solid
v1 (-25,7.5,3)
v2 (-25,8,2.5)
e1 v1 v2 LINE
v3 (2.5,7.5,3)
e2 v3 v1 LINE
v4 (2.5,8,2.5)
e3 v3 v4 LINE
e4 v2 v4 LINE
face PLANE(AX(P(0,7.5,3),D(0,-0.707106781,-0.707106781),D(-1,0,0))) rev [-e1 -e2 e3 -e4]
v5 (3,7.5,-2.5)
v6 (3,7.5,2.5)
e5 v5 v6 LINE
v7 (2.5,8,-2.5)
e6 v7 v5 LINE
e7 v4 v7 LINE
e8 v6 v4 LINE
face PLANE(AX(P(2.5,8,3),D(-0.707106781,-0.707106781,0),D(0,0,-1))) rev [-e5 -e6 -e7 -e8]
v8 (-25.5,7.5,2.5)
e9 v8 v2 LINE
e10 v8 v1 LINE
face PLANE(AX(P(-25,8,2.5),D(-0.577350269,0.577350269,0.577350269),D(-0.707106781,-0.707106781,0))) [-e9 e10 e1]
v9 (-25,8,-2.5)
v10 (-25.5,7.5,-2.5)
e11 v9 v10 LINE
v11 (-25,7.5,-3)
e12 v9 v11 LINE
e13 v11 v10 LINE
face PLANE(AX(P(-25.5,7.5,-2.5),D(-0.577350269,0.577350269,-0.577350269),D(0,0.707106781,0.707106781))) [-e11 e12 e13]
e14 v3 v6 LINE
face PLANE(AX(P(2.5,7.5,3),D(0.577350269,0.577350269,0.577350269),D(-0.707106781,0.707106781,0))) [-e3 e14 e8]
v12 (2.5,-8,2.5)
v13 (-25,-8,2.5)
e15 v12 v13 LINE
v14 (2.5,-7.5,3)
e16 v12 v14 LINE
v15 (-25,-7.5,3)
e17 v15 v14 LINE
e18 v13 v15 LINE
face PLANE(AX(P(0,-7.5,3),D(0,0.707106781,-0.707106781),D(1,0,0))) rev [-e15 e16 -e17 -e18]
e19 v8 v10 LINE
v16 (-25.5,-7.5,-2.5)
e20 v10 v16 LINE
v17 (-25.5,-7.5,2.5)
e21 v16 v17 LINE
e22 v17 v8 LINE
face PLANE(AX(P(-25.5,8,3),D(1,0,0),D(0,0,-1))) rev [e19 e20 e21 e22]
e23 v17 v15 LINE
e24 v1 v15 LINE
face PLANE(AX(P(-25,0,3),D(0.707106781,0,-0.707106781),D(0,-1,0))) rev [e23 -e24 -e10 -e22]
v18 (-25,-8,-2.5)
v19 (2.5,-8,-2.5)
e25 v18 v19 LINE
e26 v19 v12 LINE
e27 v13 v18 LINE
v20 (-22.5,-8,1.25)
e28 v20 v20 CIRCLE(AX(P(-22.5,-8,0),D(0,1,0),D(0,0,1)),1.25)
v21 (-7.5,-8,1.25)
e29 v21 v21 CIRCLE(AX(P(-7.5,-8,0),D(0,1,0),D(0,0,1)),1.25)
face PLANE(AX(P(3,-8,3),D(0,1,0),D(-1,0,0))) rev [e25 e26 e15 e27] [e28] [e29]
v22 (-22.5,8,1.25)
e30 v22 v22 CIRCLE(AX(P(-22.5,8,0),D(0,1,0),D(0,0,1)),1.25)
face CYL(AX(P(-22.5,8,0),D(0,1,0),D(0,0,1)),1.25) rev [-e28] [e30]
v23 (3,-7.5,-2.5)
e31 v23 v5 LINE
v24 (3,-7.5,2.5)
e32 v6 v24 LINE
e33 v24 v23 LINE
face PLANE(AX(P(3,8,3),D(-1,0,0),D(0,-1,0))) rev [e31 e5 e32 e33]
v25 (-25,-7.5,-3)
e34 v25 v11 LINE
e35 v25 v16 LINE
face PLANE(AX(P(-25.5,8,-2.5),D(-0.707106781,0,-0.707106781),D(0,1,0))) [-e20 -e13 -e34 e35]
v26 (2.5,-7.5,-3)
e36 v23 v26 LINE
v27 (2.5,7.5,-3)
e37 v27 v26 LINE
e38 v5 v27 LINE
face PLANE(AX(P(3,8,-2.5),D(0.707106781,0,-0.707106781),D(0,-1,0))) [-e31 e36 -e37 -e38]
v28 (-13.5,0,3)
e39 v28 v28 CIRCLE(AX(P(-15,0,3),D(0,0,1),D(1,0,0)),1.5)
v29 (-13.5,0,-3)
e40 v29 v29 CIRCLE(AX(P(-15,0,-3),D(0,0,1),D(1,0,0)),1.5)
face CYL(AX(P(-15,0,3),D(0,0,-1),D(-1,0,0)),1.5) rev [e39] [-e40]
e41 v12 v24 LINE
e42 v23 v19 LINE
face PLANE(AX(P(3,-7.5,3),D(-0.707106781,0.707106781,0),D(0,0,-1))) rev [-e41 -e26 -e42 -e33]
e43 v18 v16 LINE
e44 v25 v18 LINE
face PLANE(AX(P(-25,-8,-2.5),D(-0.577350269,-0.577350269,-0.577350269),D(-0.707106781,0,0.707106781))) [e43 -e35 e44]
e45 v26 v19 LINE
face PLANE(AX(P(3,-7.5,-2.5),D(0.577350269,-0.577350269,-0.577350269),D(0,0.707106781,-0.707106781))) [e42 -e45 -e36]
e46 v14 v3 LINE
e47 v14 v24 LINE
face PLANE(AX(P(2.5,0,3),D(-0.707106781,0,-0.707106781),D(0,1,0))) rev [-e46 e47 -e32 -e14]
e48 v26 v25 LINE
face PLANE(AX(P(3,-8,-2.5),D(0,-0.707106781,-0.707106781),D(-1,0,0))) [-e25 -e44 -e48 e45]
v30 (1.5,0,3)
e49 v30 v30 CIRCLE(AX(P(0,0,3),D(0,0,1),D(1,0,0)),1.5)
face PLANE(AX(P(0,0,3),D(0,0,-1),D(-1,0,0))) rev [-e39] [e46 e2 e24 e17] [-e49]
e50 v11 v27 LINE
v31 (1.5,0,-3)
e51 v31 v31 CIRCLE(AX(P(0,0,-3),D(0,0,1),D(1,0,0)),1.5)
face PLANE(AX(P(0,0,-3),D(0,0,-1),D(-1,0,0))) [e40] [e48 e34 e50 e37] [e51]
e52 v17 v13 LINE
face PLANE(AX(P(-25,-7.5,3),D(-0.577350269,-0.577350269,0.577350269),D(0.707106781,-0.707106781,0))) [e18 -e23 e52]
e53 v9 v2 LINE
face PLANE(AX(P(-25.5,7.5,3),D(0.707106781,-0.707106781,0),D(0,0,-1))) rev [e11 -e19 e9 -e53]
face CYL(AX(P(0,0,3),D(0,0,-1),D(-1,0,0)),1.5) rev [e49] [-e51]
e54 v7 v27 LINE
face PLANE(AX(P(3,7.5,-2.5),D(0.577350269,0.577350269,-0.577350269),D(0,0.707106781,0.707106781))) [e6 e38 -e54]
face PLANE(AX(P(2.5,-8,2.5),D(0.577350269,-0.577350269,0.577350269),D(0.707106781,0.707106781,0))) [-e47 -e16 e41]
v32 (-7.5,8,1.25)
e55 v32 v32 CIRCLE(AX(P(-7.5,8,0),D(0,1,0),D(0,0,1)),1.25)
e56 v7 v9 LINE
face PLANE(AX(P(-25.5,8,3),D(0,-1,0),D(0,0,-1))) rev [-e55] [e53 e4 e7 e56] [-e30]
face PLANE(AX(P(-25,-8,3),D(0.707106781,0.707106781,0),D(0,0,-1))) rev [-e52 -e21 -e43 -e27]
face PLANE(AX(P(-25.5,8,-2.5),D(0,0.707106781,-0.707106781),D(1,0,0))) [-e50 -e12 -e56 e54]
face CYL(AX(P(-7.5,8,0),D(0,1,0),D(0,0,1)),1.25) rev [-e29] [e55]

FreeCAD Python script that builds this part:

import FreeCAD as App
import Part
import Sketcher
from FreeCAD import Vector


def edges_at(feature, points):
    """Names of the edges that pass closest to the given points."""
    edges = feature.Shape.Edges
    near = lambda p: min(range(len(edges)), key=lambda i: edges[i].distToShape(Part.Vertex(*p))[0])
    return sorted({f"Edge{near(p) + 1}" for p in points})

doc = App.newDocument("Part")
params = doc.addObject("Spreadsheet::Sheet", "Params")
for row, (alias, value) in enumerate([
    ("sketch1_diameter", "3 mm"),
    ("sketch1_height", "16 mm"),
    ("sketch1_width", "28.5 mm"),
    ("pad1_length", "6 mm"),
    ("sketch2_diameter", "2.5 mm"),
    ("hole_diameter", "2.5 mm"),
    ("chamfer_size", "0.5 mm"),
], start=1):
    params.set(f"A{row}", alias)
    params.set(f"B{row}", "=" + value)
    params.setAlias(f"B{row}", alias)

body = doc.addObject("PartDesign::Body", "Body")

# Sketch on XY plane
sketch1 = body.newObject("Sketcher::SketchObject", "Sketch")
sketch1.AttachmentSupport = (doc.getObject("XY_Plane"), [""])
sketch1.MapMode = "FlatFace"
sketch1.addGeometry(Part.LineSegment(Vector(-25.5, 8, 0), Vector(-25.5, -8, 0)), False)
sketch1.addGeometry(Part.LineSegment(Vector(-25.5, -8, 0), Vector(3, -8, 0)), False)
sketch1.addGeometry(Part.LineSegment(Vector(3, -8, 0), Vector(3, 8, 0)), False)
sketch1.addGeometry(Part.LineSegment(Vector(3, 8, 0), Vector(-25.5, 8, 0)), False)
sketch1.addGeometry(Part.Circle(Vector(-15, 0, 0), Vector(0, 0, 1), 1.5), False)
sketch1.addGeometry(Part.Circle(Vector(0, 0, 0), Vector(0, 0, 1), 1.5), False)
sketch1.addConstraint(Sketcher.Constraint("Coincident", 0, 2, 1, 1))
sketch1.addConstraint(Sketcher.Constraint("Coincident", 1, 2, 2, 1))
sketch1.addConstraint(Sketcher.Constraint("Coincident", 2, 2, 3, 1))
sketch1.addConstraint(Sketcher.Constraint("Coincident", 3, 2, 0, 1))
sketch1.addConstraint(Sketcher.Constraint("Vertical", 0))
sketch1.addConstraint(Sketcher.Constraint("Horizontal", 1))
sketch1.addConstraint(Sketcher.Constraint("Vertical", 2))
sketch1.addConstraint(Sketcher.Constraint("Horizontal", 3))
sketch1.addConstraint(Sketcher.Constraint("Coincident", 5, 3, -1, 1))
sketch1.addConstraint(Sketcher.Constraint("Equal", 4, 5))
sketch1.addConstraint(Sketcher.Constraint("PointOnObject", 4, 3, -1))
sketch1.addConstraint(Sketcher.Constraint("Diameter", 4, 3.0))
sketch1.addConstraint(Sketcher.Constraint("DistanceY", 0, 2, 0, 1, 16.0))
sketch1.addConstraint(Sketcher.Constraint("DistanceX", 1, 1, 1, 2, 28.5))
sketch1.addConstraint(Sketcher.Constraint("DistanceX", 4, 3, -1, 1, 15.0))
sketch1.addConstraint(Sketcher.Constraint("DistanceY", 0, 2, -1, 1, 8.0))
sketch1.addConstraint(Sketcher.Constraint("DistanceX", -1, 1, 1, 2, 3.0))
sketch1.setExpression("Constraints[11]", "Params.sketch1_diameter")
sketch1.setExpression("Constraints[12]", "Params.sketch1_height")
sketch1.setExpression("Constraints[13]", "Params.sketch1_width")
pad1 = body.newObject("PartDesign::Pad", "Pad")
pad1.Profile = sketch1
pad1.setExpression("Length", "Params.pad1_length")
pad1.Midplane = True

# Sketch on XZ plane
sketch2 = body.newObject("Sketcher::SketchObject", "Sketch001")
sketch2.AttachmentSupport = (doc.getObject("XZ_Plane"), [""])
sketch2.MapMode = "FlatFace"
sketch2.AttachmentOffset = App.Placement(Vector(0, 0, -8), App.Rotation())
sketch2.addGeometry(Part.Circle(Vector(-7.5, 0, 0), Vector(0, 0, 1), 1.2), False)
sketch2.addGeometry(Part.Circle(Vector(-22.5, 0, 0), Vector(0, 0, 1), 1.2), False)
sketch2.addConstraint(Sketcher.Constraint("Equal", 0, 1))
sketch2.addConstraint(Sketcher.Constraint("PointOnObject", 0, 3, -1))
sketch2.addConstraint(Sketcher.Constraint("PointOnObject", 1, 3, -1))
sketch2.addConstraint(Sketcher.Constraint("Diameter", 0, 2.5))
sketch2.addConstraint(Sketcher.Constraint("DistanceX", 1, 3, 0, 3, 15.0))
sketch2.addConstraint(Sketcher.Constraint("DistanceX", 0, 3, -1, 1, 7.5))
sketch2.setExpression("Constraints[3]", "Params.sketch2_diameter")
doc.recompute()
hole = body.newObject("PartDesign::Hole", "Hole")
hole.Profile = sketch2
hole.ThreadType = "None"
hole.setExpression("Diameter", "Params.hole_diameter")
hole.DepthType = "ThroughAll"
hole.Reversed = True
doc.recompute()

chamfer = body.newObject("PartDesign::Chamfer", "Chamfer")
chamfer.Base = (hole, edges_at(hole, [
    (-11.25, -8, 3),
    (3, 0, 3),
    (-11.25, 8, 3),
    (3, 0, -3),
    (-11.25, -8, -3),
    (-25.5, 0, -3),
    (-11.25, 8, -3),
    (-25.5, 0, 3),
    (3, 8, 0),
    (3, -8, 0),
    (-25.5, -8, 0),
    (-25.5, 8, 0),
]))
chamfer.setExpression("Size", "Params.chamfer_size")

doc.recompute()
